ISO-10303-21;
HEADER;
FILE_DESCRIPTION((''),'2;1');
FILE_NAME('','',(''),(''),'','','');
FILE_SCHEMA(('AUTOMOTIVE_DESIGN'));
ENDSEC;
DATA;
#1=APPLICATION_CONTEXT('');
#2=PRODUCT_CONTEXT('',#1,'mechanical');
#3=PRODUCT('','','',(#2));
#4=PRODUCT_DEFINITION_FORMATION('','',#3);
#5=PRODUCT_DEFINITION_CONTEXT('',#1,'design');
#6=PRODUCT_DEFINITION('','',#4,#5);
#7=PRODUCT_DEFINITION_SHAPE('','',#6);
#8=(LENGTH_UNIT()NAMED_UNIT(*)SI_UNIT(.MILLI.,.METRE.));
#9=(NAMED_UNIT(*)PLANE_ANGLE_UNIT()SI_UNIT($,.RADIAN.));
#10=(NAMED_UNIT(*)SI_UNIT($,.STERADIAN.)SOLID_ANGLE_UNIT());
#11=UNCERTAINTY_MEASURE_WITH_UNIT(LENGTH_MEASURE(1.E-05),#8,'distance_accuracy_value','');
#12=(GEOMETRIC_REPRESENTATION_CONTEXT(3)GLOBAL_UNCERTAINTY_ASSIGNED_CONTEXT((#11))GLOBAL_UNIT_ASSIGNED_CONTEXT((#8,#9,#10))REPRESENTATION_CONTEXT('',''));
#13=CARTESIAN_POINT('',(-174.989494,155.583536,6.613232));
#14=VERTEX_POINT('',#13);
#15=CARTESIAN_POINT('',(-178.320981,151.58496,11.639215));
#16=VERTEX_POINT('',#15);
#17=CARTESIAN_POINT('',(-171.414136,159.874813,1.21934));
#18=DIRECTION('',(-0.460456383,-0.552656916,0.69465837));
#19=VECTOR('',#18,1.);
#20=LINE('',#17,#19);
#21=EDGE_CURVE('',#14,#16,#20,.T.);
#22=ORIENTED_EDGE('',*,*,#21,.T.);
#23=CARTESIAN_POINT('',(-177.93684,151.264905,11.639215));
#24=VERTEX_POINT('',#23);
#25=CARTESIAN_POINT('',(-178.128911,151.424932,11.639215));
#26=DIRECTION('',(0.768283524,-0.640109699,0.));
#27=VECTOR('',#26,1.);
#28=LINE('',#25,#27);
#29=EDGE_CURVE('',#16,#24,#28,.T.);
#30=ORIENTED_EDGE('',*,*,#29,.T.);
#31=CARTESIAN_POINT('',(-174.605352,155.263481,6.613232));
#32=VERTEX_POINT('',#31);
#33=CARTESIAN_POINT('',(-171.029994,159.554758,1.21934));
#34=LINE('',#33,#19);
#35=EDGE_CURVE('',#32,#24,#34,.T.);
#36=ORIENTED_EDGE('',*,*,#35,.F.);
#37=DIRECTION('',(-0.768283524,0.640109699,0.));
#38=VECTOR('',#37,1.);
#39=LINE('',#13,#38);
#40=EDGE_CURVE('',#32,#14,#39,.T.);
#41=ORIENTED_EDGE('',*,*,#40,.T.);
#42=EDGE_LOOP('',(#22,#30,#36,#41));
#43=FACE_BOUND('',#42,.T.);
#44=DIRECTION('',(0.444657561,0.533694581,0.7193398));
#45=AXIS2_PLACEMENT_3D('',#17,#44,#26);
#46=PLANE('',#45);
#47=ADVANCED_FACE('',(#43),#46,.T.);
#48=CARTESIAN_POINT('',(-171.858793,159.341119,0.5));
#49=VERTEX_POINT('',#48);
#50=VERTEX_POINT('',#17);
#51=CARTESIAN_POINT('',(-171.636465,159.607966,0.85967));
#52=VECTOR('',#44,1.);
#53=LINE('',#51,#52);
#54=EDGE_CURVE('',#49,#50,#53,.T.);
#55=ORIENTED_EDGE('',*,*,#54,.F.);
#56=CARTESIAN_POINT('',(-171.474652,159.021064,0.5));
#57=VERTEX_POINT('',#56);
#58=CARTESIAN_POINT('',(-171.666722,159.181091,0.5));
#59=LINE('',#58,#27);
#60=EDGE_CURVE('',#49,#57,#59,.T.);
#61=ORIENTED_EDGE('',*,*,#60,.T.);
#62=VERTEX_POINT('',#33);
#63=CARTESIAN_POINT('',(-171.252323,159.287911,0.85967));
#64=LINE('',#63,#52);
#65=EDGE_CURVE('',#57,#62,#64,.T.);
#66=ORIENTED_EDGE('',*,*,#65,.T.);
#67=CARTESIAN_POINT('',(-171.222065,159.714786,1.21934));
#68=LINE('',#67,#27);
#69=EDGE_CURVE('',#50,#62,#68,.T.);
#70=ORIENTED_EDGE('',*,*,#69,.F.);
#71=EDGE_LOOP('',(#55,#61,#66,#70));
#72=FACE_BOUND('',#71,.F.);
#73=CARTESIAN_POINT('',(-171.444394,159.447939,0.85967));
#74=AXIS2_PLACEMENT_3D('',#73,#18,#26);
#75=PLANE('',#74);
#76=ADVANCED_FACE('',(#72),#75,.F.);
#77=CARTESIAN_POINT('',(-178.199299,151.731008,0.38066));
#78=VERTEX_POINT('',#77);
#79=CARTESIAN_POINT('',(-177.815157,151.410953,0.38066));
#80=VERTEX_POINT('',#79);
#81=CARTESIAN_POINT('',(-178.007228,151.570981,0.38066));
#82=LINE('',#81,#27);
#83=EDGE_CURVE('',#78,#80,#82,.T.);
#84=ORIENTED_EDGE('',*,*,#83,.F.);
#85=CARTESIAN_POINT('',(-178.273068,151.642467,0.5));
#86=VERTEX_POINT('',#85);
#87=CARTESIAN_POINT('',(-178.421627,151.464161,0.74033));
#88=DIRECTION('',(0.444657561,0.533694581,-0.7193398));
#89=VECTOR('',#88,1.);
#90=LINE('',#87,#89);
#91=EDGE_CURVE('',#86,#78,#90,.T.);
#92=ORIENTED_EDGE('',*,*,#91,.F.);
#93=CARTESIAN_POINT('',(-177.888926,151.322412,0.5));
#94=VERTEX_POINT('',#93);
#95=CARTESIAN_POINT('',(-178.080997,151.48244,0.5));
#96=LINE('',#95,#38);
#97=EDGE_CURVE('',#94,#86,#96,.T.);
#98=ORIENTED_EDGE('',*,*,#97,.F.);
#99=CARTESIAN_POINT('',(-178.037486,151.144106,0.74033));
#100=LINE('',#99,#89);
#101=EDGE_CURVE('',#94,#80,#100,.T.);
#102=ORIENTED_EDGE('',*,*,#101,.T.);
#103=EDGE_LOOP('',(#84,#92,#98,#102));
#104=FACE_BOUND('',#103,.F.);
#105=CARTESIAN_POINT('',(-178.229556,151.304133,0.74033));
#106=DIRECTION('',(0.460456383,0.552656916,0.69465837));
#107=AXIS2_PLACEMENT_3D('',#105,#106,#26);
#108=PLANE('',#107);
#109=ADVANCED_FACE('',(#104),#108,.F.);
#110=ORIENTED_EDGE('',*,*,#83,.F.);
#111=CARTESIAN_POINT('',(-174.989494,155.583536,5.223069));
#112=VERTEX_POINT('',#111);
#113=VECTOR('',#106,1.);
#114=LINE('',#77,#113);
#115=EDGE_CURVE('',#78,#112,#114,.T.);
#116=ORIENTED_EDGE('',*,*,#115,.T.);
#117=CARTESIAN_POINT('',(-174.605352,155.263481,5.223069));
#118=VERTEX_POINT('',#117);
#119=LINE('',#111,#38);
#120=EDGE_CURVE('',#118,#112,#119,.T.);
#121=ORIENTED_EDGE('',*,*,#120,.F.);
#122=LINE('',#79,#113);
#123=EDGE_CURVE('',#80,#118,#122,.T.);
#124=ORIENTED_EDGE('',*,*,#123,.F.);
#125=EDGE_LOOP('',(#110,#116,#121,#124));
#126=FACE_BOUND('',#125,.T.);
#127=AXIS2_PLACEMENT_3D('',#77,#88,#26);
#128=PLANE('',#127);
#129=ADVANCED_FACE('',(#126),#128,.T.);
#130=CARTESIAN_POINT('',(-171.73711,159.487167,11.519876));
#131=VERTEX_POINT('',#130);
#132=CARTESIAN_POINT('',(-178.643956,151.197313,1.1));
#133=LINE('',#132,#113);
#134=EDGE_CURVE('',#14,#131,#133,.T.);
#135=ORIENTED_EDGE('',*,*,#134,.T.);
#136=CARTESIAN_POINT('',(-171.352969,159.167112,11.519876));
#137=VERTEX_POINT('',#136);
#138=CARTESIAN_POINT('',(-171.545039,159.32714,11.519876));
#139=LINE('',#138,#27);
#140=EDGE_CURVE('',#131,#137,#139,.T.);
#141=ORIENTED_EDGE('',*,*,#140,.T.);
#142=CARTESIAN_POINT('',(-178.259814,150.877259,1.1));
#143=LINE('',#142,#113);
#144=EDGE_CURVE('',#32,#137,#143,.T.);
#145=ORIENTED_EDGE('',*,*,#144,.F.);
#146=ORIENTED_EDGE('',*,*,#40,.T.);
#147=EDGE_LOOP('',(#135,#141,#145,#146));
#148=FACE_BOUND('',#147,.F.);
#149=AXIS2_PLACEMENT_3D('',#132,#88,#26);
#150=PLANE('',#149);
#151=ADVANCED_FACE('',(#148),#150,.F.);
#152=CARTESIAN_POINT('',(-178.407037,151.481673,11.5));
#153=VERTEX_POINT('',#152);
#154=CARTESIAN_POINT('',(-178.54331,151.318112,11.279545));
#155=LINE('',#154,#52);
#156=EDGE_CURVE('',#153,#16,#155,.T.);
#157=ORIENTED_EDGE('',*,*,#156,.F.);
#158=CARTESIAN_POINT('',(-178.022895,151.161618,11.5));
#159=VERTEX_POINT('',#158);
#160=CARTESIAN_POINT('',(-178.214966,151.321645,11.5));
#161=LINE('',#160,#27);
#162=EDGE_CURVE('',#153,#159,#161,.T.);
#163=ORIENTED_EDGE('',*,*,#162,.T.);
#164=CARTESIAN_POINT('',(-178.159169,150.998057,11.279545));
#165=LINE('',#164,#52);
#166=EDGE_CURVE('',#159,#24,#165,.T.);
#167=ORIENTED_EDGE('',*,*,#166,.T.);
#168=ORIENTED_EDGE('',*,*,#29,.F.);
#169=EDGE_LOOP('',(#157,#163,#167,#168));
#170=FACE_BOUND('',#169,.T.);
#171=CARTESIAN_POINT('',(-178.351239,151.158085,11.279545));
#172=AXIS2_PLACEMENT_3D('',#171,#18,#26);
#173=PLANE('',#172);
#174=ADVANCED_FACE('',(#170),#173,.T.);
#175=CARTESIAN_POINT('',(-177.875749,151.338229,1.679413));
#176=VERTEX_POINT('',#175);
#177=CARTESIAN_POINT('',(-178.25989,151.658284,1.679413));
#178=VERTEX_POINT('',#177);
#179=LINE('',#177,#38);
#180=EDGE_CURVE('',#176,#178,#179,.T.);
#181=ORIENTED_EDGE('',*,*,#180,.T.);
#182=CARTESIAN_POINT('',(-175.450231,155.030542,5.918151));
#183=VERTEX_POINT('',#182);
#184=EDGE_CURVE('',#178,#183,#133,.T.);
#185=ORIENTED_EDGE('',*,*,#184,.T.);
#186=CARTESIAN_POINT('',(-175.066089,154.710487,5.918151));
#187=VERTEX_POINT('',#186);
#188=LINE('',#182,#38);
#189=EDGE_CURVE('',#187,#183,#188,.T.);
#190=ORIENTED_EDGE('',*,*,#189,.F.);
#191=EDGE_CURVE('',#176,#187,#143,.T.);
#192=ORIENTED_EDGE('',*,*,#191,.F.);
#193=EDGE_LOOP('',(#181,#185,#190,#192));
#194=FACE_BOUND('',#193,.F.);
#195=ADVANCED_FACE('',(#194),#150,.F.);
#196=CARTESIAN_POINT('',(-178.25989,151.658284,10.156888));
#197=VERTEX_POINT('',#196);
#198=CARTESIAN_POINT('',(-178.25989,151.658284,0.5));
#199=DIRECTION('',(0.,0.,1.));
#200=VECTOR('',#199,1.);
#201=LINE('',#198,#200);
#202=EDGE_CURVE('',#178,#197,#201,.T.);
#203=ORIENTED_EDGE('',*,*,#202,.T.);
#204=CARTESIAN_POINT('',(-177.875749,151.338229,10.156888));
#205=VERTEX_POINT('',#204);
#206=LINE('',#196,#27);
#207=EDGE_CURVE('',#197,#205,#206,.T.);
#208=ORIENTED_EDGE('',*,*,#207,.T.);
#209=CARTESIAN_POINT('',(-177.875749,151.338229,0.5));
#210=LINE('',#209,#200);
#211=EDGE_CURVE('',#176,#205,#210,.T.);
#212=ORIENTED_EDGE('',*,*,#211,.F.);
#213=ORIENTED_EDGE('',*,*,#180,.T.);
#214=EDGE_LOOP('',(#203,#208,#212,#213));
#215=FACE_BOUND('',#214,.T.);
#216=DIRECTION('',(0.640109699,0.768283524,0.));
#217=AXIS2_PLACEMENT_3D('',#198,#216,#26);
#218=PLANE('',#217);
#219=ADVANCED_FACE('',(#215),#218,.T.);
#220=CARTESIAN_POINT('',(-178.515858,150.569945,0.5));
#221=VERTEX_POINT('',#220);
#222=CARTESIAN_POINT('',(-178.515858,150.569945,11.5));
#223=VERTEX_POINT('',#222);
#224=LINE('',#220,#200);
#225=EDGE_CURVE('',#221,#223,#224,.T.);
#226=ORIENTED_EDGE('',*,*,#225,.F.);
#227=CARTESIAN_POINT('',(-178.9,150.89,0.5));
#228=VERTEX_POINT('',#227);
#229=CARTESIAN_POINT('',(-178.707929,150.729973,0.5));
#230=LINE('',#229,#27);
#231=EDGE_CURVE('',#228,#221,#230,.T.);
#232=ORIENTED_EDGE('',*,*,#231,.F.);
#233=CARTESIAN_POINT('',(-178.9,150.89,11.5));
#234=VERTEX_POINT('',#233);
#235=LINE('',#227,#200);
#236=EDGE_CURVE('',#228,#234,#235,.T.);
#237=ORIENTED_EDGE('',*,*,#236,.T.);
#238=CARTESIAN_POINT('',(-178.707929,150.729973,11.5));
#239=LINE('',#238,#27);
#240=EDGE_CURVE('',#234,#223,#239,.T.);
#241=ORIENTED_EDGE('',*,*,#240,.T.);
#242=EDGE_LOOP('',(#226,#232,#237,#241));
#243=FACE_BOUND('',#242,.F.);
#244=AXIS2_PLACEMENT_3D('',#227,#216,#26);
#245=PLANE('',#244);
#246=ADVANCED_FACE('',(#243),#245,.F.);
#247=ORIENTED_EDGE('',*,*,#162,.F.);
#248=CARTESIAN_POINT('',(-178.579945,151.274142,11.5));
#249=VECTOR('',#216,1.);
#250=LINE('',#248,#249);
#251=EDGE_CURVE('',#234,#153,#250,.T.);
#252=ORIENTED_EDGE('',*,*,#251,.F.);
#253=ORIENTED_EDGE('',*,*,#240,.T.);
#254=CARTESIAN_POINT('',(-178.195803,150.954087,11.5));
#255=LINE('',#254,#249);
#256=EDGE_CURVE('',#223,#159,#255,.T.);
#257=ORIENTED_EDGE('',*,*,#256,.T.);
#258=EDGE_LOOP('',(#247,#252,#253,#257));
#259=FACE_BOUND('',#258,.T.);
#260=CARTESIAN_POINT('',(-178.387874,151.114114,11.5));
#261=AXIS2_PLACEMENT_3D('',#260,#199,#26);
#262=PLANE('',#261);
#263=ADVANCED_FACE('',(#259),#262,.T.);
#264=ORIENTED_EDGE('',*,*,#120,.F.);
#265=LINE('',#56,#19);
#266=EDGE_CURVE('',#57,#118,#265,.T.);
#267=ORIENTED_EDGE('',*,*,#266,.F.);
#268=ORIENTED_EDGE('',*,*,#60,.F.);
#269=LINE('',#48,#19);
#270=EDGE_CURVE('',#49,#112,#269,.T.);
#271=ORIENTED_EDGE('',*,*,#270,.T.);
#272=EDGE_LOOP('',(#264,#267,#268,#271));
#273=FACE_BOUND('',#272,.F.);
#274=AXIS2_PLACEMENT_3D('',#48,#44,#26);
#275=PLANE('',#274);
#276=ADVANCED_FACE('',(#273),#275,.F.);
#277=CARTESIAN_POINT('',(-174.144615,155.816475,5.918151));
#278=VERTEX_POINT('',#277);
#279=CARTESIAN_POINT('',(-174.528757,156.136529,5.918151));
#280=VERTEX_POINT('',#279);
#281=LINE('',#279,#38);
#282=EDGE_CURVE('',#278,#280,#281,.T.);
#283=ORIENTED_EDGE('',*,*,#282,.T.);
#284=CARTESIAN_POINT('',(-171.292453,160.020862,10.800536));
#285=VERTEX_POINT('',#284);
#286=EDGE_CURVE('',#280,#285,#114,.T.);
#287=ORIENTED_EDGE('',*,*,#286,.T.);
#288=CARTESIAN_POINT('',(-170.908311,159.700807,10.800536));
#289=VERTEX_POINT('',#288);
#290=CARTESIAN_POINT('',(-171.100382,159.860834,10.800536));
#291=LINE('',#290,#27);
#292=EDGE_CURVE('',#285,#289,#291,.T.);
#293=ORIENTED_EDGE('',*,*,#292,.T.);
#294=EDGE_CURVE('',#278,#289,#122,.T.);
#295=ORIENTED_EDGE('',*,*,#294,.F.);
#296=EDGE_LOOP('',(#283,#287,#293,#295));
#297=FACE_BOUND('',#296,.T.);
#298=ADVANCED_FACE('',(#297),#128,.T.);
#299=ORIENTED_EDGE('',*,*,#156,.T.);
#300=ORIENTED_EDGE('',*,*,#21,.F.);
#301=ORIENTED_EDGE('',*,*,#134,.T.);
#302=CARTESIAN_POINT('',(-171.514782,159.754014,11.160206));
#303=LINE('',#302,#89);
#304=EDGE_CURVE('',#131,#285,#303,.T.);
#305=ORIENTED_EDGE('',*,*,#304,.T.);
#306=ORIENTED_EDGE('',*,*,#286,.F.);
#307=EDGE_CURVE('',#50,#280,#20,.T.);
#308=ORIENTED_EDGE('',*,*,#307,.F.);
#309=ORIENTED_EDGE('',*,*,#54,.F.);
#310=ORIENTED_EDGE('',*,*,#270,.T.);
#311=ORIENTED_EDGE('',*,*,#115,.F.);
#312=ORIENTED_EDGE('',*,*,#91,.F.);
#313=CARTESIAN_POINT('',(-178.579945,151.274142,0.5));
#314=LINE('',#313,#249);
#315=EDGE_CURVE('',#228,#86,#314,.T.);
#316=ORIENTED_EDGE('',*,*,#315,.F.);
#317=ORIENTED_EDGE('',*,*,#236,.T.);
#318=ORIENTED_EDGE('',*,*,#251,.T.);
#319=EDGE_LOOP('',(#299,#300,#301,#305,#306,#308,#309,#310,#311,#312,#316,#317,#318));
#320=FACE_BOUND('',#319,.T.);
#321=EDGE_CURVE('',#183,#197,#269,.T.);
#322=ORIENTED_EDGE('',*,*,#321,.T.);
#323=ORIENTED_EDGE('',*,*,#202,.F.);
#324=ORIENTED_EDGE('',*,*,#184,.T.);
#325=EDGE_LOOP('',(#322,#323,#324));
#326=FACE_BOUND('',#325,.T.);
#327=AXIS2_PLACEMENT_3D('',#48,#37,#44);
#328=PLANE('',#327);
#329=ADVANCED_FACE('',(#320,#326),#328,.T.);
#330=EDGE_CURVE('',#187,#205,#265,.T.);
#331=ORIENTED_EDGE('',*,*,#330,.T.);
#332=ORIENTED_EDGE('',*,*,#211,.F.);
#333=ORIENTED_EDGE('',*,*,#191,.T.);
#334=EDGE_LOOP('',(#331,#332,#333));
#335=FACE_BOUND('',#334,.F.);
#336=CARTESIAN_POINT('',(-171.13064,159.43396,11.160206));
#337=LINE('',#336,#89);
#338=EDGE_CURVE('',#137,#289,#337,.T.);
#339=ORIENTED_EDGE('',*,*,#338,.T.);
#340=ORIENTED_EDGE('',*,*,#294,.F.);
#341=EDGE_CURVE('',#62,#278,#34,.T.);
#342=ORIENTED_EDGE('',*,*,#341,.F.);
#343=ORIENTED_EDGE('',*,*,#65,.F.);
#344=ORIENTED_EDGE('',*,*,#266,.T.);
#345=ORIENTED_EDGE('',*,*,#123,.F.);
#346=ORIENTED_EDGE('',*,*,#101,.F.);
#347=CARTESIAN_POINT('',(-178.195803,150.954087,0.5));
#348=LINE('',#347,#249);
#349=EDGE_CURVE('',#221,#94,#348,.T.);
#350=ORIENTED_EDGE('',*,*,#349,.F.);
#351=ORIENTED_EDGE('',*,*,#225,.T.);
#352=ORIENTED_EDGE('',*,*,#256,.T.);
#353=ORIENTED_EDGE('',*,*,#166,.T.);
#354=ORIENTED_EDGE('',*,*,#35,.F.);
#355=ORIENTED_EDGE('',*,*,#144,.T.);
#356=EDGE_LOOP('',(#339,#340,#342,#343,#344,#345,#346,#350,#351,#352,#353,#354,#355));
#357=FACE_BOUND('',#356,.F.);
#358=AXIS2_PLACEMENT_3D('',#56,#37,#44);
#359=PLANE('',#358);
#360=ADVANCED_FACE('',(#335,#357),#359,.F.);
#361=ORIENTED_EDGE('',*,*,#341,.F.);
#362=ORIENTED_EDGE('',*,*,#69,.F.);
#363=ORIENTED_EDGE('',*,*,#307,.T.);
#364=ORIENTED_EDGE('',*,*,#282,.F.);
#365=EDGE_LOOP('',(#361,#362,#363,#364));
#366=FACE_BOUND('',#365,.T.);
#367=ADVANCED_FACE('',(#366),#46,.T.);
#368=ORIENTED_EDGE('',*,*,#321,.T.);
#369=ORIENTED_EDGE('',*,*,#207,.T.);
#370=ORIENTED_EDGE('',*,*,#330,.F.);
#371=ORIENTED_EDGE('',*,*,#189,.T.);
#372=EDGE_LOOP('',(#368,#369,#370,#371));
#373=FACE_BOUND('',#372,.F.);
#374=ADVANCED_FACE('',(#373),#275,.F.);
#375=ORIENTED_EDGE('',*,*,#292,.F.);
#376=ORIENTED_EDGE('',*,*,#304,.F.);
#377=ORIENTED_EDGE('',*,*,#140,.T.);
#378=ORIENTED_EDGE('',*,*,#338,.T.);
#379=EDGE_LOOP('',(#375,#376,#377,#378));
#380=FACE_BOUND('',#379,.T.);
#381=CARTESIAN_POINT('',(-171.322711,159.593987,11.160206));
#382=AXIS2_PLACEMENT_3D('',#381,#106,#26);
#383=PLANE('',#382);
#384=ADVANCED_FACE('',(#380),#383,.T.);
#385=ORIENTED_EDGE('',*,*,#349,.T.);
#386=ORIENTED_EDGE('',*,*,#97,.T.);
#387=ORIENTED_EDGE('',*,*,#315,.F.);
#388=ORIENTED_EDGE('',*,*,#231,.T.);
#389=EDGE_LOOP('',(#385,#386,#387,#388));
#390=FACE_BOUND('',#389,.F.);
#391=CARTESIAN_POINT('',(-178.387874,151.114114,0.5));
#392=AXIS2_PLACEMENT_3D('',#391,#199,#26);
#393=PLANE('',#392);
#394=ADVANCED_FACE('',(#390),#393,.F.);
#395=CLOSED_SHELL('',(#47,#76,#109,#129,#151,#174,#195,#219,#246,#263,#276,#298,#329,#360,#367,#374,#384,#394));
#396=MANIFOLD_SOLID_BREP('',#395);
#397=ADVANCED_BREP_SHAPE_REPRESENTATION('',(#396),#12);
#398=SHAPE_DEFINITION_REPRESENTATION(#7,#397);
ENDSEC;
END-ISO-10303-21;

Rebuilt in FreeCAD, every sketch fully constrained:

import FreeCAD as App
import Part
import Sketcher
from FreeCAD import Vector
Q = App.Units.Quantity

doc = App.newDocument("Part")
body = doc.addObject("PartDesign::Body", "Body")

# Sketch on XY plane
sketch1 = body.newObject("Sketcher::SketchObject", "Sketch")
sketch1.AttachmentSupport = (doc.getObject("XY_Plane"), [""])
sketch1.MapMode = "FlatFace"
sketch1.addGeometry(Part.LineSegment(Vector(0, 1, 0), Vector(0, 0, 0)), False)
sketch1.addGeometry(Part.LineSegment(Vector(0, 0, 0), Vector(0.5, 0, 0)), False)
sketch1.addGeometry(Part.LineSegment(Vector(0.5, 0, 0), Vector(0.5, 1, 0)), False)
sketch1.addGeometry(Part.LineSegment(Vector(0.5, 1, 0), Vector(0, 1, 0)), False)
sketch1.addConstraint(Sketcher.Constraint("Coincident", 0, 2, 1, 1))
sketch1.addConstraint(Sketcher.Constraint("Coincident", 1, 2, 2, 1))
sketch1.addConstraint(Sketcher.Constraint("Coincident", 2, 2, 3, 1))
sketch1.addConstraint(Sketcher.Constraint("Coincident", 3, 2, 0, 1))
sketch1.addConstraint(Sketcher.Constraint("Vertical", 0))
sketch1.addConstraint(Sketcher.Constraint("Horizontal", 1))
sketch1.addConstraint(Sketcher.Constraint("Vertical", 2))
sketch1.addConstraint(Sketcher.Constraint("Horizontal", 3))
sketch1.addConstraint(Sketcher.Constraint("Coincident", 0, 2, -1, 1))
sketch1.addConstraint(Sketcher.Constraint("DistanceY", 0, 2, 0, 1, Q("1 mm")))
sketch1.addConstraint(Sketcher.Constraint("DistanceX", 1, 1, 1, 2, Q("0.5 mm")))
pad1 = body.newObject("PartDesign::Pad", "Pad")
pad1.Profile = sketch1
pad1.Length = 15
body2 = doc.addObject("PartDesign::Body", "Body001")
doc.recompute()

body.Placement = App.Placement(Vector(0, 0, 0), App.Rotation(Vector(1, 0, 0), 46))
boolean = body2.newObject("PartDesign::Boolean", "Boolean")
boolean.Type = "Fuse"
boolean.addObjects([body])
body3 = doc.addObject("PartDesign::Body", "Body002")
doc.recompute()

body2.Placement = App.Placement(Vector(0, 11, 0.5), App.Rotation(Vector(0, 0, 1), 0))
boolean2 = body3.newObject("PartDesign::Boolean", "Boolean001")
boolean2.Type = "Fuse"
boolean2.addObjects([body2])
body4 = doc.addObject("PartDesign::Body", "Body003")

# Sketch on XY plane
sketch2 = body4.newObject("Sketcher::SketchObject", "Sketch001")
sketch2.AttachmentSupport = (doc.getObject("XY_Plane003"), [""])
sketch2.MapMode = "FlatFace"
sketch2.addGeometry(Part.LineSegment(Vector(0, 1, 0), Vector(0, 0, 0)), False)
sketch2.addGeometry(Part.LineSegment(Vector(0, 0, 0), Vector(0.5, 0, 0)), False)
sketch2.addGeometry(Part.LineSegment(Vector(0.5, 0, 0), Vector(0.5, 1, 0)), False)
sketch2.addGeometry(Part.LineSegment(Vector(0.5, 1, 0), Vector(0, 1, 0)), False)
sketch2.addConstraint(Sketcher.Constraint("Coincident", 0, 2, 1, 1))
sketch2.addConstraint(Sketcher.Constraint("Coincident", 1, 2, 2, 1))
sketch2.addConstraint(Sketcher.Constraint("Coincident", 2, 2, 3, 1))
sketch2.addConstraint(Sketcher.Constraint("Coincident", 3, 2, 0, 1))
sketch2.addConstraint(Sketcher.Constraint("Vertical", 0))
sketch2.addConstraint(Sketcher.Constraint("Horizontal", 1))
sketch2.addConstraint(Sketcher.Constraint("Vertical", 2))
sketch2.addConstraint(Sketcher.Constraint("Horizontal", 3))
sketch2.addConstraint(Sketcher.Constraint("Coincident", 0, 2, -1, 1))
sketch2.addConstraint(Sketcher.Constraint("DistanceY", 0, 2, 0, 1, Q("1 mm")))
sketch2.addConstraint(Sketcher.Constraint("DistanceX", 1, 1, 1, 2, Q("0.5 mm")))
pad2 = body4.newObject("PartDesign::Pad", "Pad001")
pad2.Profile = sketch2
pad2.Length = 15
body5 = doc.addObject("PartDesign::Body", "Body004")
doc.recompute()

body4.Placement = App.Placement(Vector(0, 0, 0), App.Rotation(Vector(1, 0, 0), 314))
boolean3 = body5.newObject("PartDesign::Boolean", "Boolean002")
boolean3.Type = "Fuse"
boolean3.addObjects([body4])
body6 = doc.addObject("PartDesign::Body", "Body005")
doc.recompute()

body5.Placement = App.Placement(Vector(0, 0.4, 1.1), App.Rotation(Vector(0, 0, 1), 0))
boolean4 = body6.newObject("PartDesign::Boolean", "Boolean003")
boolean4.Type = "Fuse"
boolean4.addObjects([body5])
body7 = doc.addObject("PartDesign::Body", "Body006")

# Sketch on XY plane
sketch3 = body7.newObject("Sketcher::SketchObject", "Sketch002")
sketch3.AttachmentSupport = (doc.getObject("XY_Plane006"), [""])
sketch3.MapMode = "FlatFace"
sketch3.AttachmentOffset = App.Placement(Vector(0, 0, 0.5), App.Rotation())
sketch3.addGeometry(Part.LineSegment(Vector(0, 1, 0), Vector(0, 0, 0)), False)
sketch3.addGeometry(Part.LineSegment(Vector(0, 0, 0), Vector(0.5, 0, 0)), False)
sketch3.addGeometry(Part.LineSegment(Vector(0.5, 0, 0), Vector(0.5, 1, 0)), False)
sketch3.addGeometry(Part.LineSegment(Vector(0.5, 1, 0), Vector(0, 1, 0)), False)
sketch3.addConstraint(Sketcher.Constraint("Coincident", 0, 2, 1, 1))
sketch3.addConstraint(Sketcher.Constraint("Coincident", 1, 2, 2, 1))
sketch3.addConstraint(Sketcher.Constraint("Coincident", 2, 2, 3, 1))
sketch3.addConstraint(Sketcher.Constraint("Coincident", 3, 2, 0, 1))
sketch3.addConstraint(Sketcher.Constraint("Vertical", 0))
sketch3.addConstraint(Sketcher.Constraint("Horizontal", 1))
sketch3.addConstraint(Sketcher.Constraint("Vertical", 2))
sketch3.addConstraint(Sketcher.Constraint("Horizontal", 3))
sketch3.addConstraint(Sketcher.Constraint("Coincident", 0, 2, -1, 1))
sketch3.addConstraint(Sketcher.Constraint("DistanceY", 0, 2, 0, 1, Q("1 mm")))
sketch3.addConstraint(Sketcher.Constraint("DistanceX", 1, 1, 1, 2, Q("0.5 mm")))
pad3 = body7.newObject("PartDesign::Pad", "Pad002")
pad3.Profile = sketch3
pad3.Length = 11
doc.recompute()

boolean5 = body7.newObject("PartDesign::Boolean", "Boolean004")
boolean5.Type = "Fuse"
boolean5.addObjects([body3])
doc.recompute()

boolean6 = body7.newObject("PartDesign::Boolean", "Boolean005")
boolean6.Type = "Fuse"
boolean6.addObjects([body6])
body8 = doc.addObject("PartDesign::Body", "Body007")
doc.recompute()

body7.Placement = App.Placement(Vector(-178.9, 150.89, 0), App.Rotation(Vector(0, 0, 1), 320.2))
boolean7 = body8.newObject("PartDesign::Boolean", "Boolean006")
boolean7.Type = "Fuse"
boolean7.addObjects([body7])

doc.recompute()
